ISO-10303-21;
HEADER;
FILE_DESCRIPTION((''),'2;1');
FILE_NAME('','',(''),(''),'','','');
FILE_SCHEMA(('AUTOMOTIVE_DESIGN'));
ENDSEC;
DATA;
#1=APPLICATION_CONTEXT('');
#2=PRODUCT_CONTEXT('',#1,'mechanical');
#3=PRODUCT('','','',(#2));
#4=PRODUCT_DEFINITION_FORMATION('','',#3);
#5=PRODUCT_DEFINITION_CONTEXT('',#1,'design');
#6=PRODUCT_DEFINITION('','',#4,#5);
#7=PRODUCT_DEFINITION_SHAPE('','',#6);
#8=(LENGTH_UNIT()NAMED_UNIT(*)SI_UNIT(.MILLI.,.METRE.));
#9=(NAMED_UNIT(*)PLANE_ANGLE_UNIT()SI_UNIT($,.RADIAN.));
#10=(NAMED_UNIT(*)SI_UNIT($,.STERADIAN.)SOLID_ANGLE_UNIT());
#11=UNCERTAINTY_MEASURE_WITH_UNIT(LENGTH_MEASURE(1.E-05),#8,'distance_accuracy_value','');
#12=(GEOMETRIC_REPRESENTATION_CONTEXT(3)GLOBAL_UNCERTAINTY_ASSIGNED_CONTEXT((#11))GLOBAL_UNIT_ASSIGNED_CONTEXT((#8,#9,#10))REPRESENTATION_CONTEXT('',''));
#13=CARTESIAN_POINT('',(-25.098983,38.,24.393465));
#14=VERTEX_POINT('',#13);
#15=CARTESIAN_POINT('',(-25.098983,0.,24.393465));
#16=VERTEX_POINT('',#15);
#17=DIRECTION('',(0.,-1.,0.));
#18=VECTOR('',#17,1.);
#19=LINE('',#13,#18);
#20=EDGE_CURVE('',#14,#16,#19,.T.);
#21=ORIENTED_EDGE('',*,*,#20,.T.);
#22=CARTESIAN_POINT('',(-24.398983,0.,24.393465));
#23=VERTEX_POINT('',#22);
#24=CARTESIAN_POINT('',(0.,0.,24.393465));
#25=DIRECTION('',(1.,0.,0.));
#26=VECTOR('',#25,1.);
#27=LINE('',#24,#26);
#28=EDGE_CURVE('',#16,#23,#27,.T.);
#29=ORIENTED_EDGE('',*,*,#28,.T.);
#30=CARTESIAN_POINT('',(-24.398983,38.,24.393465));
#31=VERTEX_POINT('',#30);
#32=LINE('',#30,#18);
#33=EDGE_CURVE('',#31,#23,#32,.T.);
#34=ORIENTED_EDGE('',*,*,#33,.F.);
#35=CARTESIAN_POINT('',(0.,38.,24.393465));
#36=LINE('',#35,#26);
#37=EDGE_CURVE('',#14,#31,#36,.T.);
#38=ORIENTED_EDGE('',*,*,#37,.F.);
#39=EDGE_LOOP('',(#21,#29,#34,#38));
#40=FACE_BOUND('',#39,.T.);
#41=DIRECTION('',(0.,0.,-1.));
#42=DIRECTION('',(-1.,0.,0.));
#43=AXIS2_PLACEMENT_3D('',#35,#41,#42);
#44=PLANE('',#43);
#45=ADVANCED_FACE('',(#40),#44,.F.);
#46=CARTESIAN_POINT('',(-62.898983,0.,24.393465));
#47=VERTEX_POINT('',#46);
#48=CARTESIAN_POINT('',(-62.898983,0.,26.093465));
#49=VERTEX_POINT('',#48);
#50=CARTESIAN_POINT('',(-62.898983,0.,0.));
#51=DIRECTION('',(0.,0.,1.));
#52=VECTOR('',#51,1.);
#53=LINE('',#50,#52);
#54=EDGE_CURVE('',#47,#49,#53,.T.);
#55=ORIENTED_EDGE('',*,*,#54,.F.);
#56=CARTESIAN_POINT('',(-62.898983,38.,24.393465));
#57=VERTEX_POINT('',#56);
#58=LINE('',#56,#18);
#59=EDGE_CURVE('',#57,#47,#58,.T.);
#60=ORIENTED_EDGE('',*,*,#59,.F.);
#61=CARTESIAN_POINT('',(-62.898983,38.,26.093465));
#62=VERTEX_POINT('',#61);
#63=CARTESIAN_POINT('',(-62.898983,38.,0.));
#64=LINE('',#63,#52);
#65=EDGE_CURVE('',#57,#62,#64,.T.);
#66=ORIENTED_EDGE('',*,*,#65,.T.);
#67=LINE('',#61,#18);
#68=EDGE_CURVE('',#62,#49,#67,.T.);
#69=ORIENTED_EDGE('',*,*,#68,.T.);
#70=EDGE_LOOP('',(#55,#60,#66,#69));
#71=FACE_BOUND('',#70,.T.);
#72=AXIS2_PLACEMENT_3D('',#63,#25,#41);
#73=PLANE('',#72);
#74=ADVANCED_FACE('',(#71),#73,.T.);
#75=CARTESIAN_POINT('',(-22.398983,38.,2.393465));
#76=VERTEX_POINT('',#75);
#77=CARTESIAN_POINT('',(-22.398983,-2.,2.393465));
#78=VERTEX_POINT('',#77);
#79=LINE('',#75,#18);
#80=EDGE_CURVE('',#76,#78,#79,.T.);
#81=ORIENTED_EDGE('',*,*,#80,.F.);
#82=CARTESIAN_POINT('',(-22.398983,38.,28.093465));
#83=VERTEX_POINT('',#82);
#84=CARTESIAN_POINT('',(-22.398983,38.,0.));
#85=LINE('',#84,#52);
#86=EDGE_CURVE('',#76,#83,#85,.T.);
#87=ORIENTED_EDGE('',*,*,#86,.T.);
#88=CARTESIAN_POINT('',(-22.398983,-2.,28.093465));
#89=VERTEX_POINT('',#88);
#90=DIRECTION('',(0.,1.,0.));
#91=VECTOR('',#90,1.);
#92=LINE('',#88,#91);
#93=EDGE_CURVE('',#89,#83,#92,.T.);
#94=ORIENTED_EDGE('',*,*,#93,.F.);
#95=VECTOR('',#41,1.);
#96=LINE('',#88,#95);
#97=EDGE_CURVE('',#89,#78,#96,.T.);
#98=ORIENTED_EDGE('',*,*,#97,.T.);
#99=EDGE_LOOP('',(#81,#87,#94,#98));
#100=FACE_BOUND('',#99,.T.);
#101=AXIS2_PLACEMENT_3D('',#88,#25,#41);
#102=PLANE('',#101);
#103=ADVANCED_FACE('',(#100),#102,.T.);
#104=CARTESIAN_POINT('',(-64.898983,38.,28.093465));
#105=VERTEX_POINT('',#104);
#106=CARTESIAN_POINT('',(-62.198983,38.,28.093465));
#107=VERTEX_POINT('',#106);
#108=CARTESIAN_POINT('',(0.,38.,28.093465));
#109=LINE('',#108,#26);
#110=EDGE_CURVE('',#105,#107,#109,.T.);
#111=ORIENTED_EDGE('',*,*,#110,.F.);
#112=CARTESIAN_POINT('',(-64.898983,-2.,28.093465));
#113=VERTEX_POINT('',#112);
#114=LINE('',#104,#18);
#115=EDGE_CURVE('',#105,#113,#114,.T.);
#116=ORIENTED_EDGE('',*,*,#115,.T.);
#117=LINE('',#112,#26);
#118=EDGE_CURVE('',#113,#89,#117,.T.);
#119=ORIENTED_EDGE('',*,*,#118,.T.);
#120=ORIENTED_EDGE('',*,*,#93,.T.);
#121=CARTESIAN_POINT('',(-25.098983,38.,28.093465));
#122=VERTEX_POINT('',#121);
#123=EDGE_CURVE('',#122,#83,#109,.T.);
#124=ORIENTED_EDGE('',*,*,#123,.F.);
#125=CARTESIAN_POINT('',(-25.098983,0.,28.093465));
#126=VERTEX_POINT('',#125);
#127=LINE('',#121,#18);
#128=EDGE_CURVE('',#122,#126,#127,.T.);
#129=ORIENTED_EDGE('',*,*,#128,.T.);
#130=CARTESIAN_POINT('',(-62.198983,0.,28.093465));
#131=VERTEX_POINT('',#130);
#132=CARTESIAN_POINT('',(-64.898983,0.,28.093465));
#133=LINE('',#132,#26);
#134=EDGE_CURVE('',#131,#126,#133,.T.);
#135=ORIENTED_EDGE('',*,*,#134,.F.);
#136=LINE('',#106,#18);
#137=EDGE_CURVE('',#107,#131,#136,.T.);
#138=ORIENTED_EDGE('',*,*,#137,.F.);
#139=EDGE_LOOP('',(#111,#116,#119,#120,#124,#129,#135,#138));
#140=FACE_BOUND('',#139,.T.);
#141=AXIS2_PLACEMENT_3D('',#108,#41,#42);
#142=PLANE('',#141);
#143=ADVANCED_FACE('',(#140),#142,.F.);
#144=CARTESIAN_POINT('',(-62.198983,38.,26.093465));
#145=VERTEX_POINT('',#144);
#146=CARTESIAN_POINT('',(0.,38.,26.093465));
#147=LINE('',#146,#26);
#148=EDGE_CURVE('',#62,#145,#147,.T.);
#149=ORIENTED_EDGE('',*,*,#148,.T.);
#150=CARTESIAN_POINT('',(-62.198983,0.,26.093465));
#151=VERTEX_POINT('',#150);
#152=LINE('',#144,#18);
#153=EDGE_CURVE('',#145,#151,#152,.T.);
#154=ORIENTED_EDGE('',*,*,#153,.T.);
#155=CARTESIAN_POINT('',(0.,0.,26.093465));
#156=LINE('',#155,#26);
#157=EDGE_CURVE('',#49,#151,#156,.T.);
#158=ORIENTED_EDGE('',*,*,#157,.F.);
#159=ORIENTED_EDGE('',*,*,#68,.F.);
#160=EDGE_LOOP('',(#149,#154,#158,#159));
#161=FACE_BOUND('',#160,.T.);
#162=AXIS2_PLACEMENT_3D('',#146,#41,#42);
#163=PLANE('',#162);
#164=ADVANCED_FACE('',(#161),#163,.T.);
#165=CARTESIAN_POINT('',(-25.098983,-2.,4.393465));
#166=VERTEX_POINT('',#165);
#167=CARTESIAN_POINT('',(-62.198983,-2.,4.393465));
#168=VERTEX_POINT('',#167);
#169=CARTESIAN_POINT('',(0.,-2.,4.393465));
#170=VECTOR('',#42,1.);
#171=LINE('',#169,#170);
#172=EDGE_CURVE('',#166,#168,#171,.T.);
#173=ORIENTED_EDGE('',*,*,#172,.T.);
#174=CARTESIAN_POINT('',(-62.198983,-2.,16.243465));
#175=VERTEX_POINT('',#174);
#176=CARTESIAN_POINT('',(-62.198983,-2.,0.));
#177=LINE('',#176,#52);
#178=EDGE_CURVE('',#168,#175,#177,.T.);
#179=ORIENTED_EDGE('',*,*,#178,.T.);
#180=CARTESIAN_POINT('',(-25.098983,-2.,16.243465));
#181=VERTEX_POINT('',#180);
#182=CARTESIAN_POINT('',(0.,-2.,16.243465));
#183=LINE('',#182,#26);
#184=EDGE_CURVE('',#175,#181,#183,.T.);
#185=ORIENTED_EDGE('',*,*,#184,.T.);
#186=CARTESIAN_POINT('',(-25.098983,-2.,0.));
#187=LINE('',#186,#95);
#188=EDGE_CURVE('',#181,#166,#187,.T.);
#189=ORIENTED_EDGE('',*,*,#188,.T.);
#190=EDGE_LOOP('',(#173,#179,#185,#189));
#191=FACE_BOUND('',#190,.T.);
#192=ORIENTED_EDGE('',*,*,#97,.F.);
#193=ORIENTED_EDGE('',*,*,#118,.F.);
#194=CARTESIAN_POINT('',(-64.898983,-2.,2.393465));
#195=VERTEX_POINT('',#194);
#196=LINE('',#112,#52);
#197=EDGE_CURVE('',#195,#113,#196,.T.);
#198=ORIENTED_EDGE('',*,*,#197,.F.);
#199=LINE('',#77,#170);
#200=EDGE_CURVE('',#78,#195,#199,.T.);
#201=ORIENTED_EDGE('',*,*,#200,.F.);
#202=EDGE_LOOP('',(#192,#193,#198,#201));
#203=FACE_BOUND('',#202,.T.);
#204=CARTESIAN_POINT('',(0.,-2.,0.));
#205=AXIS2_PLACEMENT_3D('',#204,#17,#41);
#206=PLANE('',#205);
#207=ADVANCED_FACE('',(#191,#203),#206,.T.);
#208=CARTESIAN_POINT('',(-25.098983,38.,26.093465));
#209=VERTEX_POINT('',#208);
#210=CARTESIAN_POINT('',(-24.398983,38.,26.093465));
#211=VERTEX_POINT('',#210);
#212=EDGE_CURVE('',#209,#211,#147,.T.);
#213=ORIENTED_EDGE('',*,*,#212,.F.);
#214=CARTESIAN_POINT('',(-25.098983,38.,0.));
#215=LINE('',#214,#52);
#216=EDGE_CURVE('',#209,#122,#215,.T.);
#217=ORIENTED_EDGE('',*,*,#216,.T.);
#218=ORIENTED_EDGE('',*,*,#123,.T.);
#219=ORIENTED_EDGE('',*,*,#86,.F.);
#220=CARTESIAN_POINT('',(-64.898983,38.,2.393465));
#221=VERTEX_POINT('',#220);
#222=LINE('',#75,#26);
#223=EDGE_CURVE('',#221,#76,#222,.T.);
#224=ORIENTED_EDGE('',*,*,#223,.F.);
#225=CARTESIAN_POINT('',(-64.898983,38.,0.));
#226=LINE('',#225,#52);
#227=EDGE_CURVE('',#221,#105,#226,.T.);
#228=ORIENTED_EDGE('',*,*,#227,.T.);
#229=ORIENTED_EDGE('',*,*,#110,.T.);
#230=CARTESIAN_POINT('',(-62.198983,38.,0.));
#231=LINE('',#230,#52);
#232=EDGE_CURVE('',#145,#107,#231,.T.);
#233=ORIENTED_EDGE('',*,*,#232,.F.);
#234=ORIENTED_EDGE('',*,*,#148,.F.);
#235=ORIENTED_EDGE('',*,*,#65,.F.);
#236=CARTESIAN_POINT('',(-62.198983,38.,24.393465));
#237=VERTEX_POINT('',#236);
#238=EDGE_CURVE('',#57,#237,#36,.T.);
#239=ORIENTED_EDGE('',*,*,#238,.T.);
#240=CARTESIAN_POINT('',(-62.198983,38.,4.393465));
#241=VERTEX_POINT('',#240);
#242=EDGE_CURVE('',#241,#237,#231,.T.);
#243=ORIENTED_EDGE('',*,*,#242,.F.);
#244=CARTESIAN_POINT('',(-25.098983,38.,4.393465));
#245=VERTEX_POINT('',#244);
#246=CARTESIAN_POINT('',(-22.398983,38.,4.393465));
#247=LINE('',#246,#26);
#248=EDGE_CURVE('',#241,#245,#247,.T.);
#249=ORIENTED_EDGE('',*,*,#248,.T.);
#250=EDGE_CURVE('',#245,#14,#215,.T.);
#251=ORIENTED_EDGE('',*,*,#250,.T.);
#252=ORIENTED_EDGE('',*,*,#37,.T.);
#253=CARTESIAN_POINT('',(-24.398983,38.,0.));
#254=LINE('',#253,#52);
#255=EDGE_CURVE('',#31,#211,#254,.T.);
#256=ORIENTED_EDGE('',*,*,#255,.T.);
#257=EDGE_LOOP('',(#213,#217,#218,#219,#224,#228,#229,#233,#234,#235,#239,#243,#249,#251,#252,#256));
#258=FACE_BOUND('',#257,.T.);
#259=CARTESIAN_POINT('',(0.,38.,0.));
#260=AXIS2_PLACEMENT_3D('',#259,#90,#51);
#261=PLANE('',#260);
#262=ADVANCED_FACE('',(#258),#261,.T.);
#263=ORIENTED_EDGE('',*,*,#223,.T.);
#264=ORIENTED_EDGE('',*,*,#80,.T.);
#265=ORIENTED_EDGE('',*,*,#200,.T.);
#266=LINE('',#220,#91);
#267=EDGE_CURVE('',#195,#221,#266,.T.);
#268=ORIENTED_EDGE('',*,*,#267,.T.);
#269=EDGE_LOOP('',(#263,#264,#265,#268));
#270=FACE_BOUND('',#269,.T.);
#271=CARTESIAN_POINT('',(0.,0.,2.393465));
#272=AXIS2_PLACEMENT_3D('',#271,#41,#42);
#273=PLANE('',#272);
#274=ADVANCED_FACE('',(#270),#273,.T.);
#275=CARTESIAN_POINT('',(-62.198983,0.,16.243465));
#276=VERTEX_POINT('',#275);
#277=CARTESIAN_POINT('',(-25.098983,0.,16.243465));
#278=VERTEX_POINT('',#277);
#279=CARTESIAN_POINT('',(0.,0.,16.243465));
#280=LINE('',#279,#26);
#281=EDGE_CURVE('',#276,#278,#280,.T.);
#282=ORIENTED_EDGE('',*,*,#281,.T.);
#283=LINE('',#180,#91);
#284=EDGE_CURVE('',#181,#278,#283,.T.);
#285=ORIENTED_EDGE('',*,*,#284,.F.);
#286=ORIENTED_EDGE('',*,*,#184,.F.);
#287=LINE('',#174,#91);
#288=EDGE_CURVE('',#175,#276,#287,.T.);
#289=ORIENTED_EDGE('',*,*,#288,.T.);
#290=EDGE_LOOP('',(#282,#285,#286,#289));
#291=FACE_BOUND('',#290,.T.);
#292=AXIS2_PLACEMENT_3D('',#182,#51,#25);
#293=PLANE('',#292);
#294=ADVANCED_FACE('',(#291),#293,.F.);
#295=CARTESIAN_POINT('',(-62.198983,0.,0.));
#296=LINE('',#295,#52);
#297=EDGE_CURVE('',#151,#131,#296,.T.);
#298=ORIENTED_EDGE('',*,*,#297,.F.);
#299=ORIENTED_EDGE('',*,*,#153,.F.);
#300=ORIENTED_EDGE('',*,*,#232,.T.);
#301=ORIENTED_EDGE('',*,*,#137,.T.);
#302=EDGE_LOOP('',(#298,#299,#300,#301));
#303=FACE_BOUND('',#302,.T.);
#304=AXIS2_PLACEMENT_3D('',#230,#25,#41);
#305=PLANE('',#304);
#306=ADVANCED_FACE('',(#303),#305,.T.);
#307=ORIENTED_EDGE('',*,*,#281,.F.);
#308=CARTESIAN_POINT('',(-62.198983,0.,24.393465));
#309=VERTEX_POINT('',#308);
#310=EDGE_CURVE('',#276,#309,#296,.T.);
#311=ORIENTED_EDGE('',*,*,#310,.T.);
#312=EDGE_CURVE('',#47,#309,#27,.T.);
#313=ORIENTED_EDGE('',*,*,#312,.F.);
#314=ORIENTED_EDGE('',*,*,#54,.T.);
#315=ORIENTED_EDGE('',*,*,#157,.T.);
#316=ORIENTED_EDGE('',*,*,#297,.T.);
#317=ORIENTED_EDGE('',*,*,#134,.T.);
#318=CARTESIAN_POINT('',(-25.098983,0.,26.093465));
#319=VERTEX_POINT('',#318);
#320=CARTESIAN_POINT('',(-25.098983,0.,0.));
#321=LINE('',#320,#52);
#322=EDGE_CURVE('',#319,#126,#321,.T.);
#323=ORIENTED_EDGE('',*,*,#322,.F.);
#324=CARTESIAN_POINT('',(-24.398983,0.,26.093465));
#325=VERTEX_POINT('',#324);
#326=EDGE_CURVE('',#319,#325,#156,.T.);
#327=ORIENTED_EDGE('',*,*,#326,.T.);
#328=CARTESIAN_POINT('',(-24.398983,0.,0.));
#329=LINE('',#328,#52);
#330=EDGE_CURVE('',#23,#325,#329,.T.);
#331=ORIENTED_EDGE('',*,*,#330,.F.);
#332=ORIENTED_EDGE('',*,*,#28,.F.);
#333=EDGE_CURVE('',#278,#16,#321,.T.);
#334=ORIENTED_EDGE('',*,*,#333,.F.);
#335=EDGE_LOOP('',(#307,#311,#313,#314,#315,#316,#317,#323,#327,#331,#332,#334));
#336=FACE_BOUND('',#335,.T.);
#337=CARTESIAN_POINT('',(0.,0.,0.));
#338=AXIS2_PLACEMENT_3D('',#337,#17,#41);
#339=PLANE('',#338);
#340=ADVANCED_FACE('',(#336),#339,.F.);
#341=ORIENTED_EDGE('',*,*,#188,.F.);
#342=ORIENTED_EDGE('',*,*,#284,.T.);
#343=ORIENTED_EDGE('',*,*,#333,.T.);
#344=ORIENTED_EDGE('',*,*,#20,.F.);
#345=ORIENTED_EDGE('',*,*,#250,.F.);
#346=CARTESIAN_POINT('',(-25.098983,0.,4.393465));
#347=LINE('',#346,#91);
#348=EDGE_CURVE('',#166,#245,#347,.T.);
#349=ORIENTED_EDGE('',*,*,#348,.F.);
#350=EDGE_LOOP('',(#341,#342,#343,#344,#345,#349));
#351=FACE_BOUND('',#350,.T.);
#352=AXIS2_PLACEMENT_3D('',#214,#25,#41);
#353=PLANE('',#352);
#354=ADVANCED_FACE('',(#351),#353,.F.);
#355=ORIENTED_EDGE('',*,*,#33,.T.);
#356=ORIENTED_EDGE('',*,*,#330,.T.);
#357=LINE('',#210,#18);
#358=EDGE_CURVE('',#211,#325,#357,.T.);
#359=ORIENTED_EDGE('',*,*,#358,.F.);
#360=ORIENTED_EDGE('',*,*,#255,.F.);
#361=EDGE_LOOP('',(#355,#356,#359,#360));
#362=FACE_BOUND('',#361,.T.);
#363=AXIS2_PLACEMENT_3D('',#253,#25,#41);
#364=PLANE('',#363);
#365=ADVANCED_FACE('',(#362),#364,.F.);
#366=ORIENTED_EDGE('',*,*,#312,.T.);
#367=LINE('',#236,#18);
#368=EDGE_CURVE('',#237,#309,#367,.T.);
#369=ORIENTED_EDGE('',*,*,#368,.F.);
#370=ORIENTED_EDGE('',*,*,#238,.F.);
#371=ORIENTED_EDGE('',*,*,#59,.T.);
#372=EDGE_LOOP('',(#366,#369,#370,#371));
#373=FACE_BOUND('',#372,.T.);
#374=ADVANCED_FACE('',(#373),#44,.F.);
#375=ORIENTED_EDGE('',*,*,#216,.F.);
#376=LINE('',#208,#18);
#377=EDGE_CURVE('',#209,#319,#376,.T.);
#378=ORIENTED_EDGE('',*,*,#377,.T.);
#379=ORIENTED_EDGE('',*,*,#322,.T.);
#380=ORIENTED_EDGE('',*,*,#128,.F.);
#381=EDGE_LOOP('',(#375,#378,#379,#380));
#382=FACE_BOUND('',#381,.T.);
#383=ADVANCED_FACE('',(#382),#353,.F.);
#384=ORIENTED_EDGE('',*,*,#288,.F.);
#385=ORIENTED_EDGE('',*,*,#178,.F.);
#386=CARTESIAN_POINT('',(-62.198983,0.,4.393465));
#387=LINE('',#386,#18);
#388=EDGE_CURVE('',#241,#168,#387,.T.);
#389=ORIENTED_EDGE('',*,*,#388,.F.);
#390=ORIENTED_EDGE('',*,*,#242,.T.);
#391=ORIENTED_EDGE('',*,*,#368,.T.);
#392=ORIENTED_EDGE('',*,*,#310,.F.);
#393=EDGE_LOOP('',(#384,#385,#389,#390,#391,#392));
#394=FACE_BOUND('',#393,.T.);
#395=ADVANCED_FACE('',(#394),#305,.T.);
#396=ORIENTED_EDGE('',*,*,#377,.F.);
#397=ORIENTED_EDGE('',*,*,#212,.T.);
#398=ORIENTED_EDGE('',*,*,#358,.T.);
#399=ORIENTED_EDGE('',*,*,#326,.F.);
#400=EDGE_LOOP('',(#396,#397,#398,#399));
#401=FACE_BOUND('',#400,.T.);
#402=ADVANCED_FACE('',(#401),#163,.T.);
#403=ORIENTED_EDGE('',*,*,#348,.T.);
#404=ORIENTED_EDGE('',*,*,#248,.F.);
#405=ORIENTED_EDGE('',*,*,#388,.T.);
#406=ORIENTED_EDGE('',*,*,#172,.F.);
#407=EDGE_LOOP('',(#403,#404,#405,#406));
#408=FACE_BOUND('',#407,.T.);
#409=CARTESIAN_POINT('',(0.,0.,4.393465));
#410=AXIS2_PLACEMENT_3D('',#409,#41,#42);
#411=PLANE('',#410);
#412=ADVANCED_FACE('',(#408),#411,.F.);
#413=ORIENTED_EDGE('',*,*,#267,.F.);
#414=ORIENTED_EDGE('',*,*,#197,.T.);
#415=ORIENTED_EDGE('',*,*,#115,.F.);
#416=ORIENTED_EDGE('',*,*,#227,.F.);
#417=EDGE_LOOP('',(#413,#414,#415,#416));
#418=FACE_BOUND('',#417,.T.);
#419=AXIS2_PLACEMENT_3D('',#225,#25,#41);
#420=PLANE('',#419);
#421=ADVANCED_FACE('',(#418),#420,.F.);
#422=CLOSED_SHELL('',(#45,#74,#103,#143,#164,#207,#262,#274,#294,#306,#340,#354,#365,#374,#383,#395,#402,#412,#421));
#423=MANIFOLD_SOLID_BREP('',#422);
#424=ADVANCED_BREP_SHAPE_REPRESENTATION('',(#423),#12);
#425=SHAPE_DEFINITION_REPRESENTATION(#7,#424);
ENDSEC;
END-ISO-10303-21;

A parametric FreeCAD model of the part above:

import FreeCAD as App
import Part
import Sketcher

V = App.Vector


def add_polygon(sketch, points):
    """Adds a closed chain of lines whose ends are joined by coincident constraints."""
    first, n = sketch.GeometryCount, len(points)
    for a, b in zip(points, points[1:] + points[:1]):
        sketch.addGeometry(Part.LineSegment(App.Vector(*a, 0), App.Vector(*b, 0)), False)
    for i in range(n):
        sketch.addConstraint(Sketcher.Constraint("Coincident", first + i, 2, first + (i + 1) % n, 1))

doc = App.newDocument("Part")
body = doc.addObject("PartDesign::Body", "Body")

# Sketch on XZ plane
sketch1 = body.newObject("Sketcher::SketchObject", "Sketch")
sketch1.AttachmentSupport = (doc.getObject("XZ_Plane"), [""])
sketch1.MapMode = "FlatFace"
add_polygon(sketch1, [(-62.9, 26.1), (-62.9, 24.4), (-62.2, 24.4), (-62.2, 22.4), (-64.9, 22.4), (-64.9, 28.1), (-62.2, 28.1), (-62.2, 26.1)])  # lines 0-7
sketch1.addConstraint([
    Sketcher.Constraint("Vertical", 0),
    Sketcher.Constraint("Horizontal", 1),
    Sketcher.Constraint("Vertical", 2),
    Sketcher.Constraint("Horizontal", 3),
    Sketcher.Constraint("Vertical", 4),
    Sketcher.Constraint("Horizontal", 5),
    Sketcher.Constraint("Vertical", 6),
    Sketcher.Constraint("Horizontal", 7),
    Sketcher.Constraint("Vertical", 2, 2, 5, 2),
    Sketcher.Constraint("Equal", 2, 6),
    Sketcher.Constraint("DistanceY", 2, 2, 2, 1, 2.0),
    Sketcher.Constraint("DistanceX", 1, 1, 1, 2, 0.7),
    Sketcher.Constraint("DistanceX", 3, 2, 3, 1, 2.7),
    Sketcher.Constraint("DistanceY", 0, 2, 0, 1, 1.7),
    Sketcher.Constraint("DistanceX", 0, 2, -1, 1, 62.898983),
    Sketcher.Constraint("DistanceY", -1, 1, 0, 2, 24.393465),
])
pad1 = body.newObject("PartDesign::Pad", "Pad")
pad1.Profile = sketch1
pad1.Length = 38
pad1.Reversed = True
body2 = doc.addObject("PartDesign::Body", "Body001")

# Sketch on XZ plane
sketch2 = body2.newObject("Sketcher::SketchObject", "Sketch001")
sketch2.AttachmentSupport = (doc.getObject("XZ_Plane001"), [""])
sketch2.MapMode = "FlatFace"
add_polygon(sketch2, [(-25.1, 22.4), (-25.1, 24.4), (-24.4, 24.4), (-24.4, 26.1), (-25.1, 26.1), (-25.1, 28.1), (-22.4, 28.1), (-22.4, 22.4)])  # lines 0-7
sketch2.addConstraint([
    Sketcher.Constraint("Vertical", 0),
    Sketcher.Constraint("Horizontal", 1),
    Sketcher.Constraint("Vertical", 2),
    Sketcher.Constraint("Horizontal", 3),
    Sketcher.Constraint("Vertical", 4),
    Sketcher.Constraint("Horizontal", 5),
    Sketcher.Constraint("Vertical", 6),
    Sketcher.Constraint("Horizontal", 7),
    Sketcher.Constraint("Vertical", 0, 2, 3, 2),
    Sketcher.Constraint("Equal", 0, 4),
    Sketcher.Constraint("DistanceY", 0, 1, 0, 2, 2.0),
    Sketcher.Constraint("DistanceX", 1, 1, 1, 2, 0.7),
    Sketcher.Constraint("DistanceX", 5, 1, 5, 2, 2.7),
    Sketcher.Constraint("DistanceY", 2, 1, 2, 2, 1.7),
    Sketcher.Constraint("DistanceX", 0, 2, -1, 1, 25.098983),
    Sketcher.Constraint("DistanceY", -1, 1, 0, 2, 24.393465),
])
pad2 = body2.newObject("PartDesign::Pad", "Pad001")
pad2.Profile = sketch2
pad2.Length = 38
pad2.Reversed = True
body.AllowCompound = True
doc.recompute()

boolean = body.newObject("PartDesign::Boolean", "Boolean")
boolean.Type = "Fuse"
boolean.addObjects([body2])

# Sketch on XZ plane
sketch3 = body.newObject("Sketcher::SketchObject", "Sketch002")
sketch3.AttachmentSupport = (doc.getObject("XZ_Plane"), [""])
sketch3.MapMode = "FlatFace"
add_polygon(sketch3, [(-65, 22), (-65, 28), (-22, 28), (-22, 22)])  # lines 0-3
sketch3.addConstraint([
    Sketcher.Constraint("Vertical", 0),
    Sketcher.Constraint("Horizontal", 1),
    Sketcher.Constraint("Vertical", 2),
    Sketcher.Constraint("Horizontal", 3),
    Sketcher.Constraint("DistanceX", 1, 1, 1, 2, 42.5),
    Sketcher.Constraint("DistanceY", 0, 1, 0, 2, 5.7),
    Sketcher.Constraint("DistanceX", 0, 2, -1, 1, 64.898983),
    Sketcher.Constraint("DistanceY", -1, 1, 0, 2, 28.093465),
])
pad3 = body.newObject("PartDesign::Pad", "Pad002")
pad3.Profile = sketch3
pad3.Length = 2

# Sketch on XY plane
sketch4 = body.newObject("Sketcher::SketchObject", "Sketch003")
sketch4.AttachmentSupport = (doc.getObject("XY_Plane"), [""])
sketch4.MapMode = "FlatFace"
sketch4.AttachmentOffset = App.Placement(V(0, 0, 22.393465), App.Rotation())
add_polygon(sketch4, [(-64.9, 38), (-62.2, 38), (-62.2, 0), (-25.1, 0), (-25.1, 38), (-22.4, 38), (-22.4, -2), (-64.9, -2)])  # lines 0-7
sketch4.addConstraint([
    Sketcher.Constraint("Horizontal", 0),
    Sketcher.Constraint("Vertical", 1),
    Sketcher.Constraint("Horizontal", 2),
    Sketcher.Constraint("Vertical", 3),
    Sketcher.Constraint("Horizontal", 4),
    Sketcher.Constraint("Vertical", 5),
    Sketcher.Constraint("Horizontal", 6),
    Sketcher.Constraint("Vertical", 7),
    Sketcher.Constraint("PointOnObject", 1, 2, -1),
    Sketcher.Constraint("Horizontal", 0, 2, 3, 2),
    Sketcher.Constraint("Equal", 0, 4),
    Sketcher.Constraint("DistanceY", 1, 2, 1, 1, 38.0),
    Sketcher.Constraint("DistanceY", 5, 2, 5, 1, 40.0),
    Sketcher.Constraint("DistanceX", 0, 1, 0, 2, 2.7),
    Sketcher.Constraint("DistanceX", 2, 1, 2, 2, 37.1),
    Sketcher.Constraint("DistanceX", 0, 2, -1, 1, 62.198983),
])
pad4 = body.newObject("PartDesign::Pad", "Pad003")
pad4.Profile = sketch4
pad4.Length = 18
pad4.Reversed = True

# Sketch on XY plane
sketch5 = body.newObject("Sketcher::SketchObject", "Sketch004")
sketch5.AttachmentSupport = (doc.getObject("XY_Plane"), [""])
sketch5.MapMode = "FlatFace"
sketch5.AttachmentOffset = App.Placement(V(0, 0, 4.393465), App.Rotation())
add_polygon(sketch5, [(-22, 38), (-22, -2), (-65, -2), (-65, 38)])  # lines 0-3
sketch5.addConstraint([
    Sketcher.Constraint("Vertical", 0),
    Sketcher.Constraint("Horizontal", 1),
    Sketcher.Constraint("Vertical", 2),
    Sketcher.Constraint("Horizontal", 3),
    Sketcher.Constraint("DistanceY", 0, 2, 0, 1, 40.0),
    Sketcher.Constraint("DistanceX", 1, 2, 1, 1, 42.5),
    Sketcher.Constraint("DistanceY", 0, 2, -1, 1, 2.0),
    Sketcher.Constraint("DistanceX", 0, 2, -1, 1, 22.398983),
])
pad5 = body.newObject("PartDesign::Pad", "Pad004")
pad5.Profile = sketch5
pad5.Length = 2
pad5.Reversed = True

# Sketch on XZ plane
sketch6 = body.newObject("Sketcher::SketchObject", "Sketch005")
sketch6.AttachmentSupport = (doc.getObject("XZ_Plane"), [""])
sketch6.MapMode = "FlatFace"
add_polygon(sketch6, [(-62, 4), (-62, 16), (-25, 16), (-25, 4)])  # lines 0-3
sketch6.addConstraint([
    Sketcher.Constraint("Vertical", 0),
    Sketcher.Constraint("Horizontal", 1),
    Sketcher.Constraint("Vertical", 2),
    Sketcher.Constraint("Horizontal", 3),
    Sketcher.Constraint("DistanceX", 1, 1, 1, 2, 37.1),
    Sketcher.Constraint("DistanceY", 0, 1, 0, 2, 11.85),
    Sketcher.Constraint("DistanceX", 0, 2, -1, 1, 62.198983),
    Sketcher.Constraint("DistanceY", -1, 1, 0, 2, 16.243465),
])
pocket1 = body.newObject("PartDesign::Pocket", "Pocket")
pocket1.Profile = sketch6
pocket1.Type = "ThroughAll"
pocket1.Reversed = True

doc.recompute()
